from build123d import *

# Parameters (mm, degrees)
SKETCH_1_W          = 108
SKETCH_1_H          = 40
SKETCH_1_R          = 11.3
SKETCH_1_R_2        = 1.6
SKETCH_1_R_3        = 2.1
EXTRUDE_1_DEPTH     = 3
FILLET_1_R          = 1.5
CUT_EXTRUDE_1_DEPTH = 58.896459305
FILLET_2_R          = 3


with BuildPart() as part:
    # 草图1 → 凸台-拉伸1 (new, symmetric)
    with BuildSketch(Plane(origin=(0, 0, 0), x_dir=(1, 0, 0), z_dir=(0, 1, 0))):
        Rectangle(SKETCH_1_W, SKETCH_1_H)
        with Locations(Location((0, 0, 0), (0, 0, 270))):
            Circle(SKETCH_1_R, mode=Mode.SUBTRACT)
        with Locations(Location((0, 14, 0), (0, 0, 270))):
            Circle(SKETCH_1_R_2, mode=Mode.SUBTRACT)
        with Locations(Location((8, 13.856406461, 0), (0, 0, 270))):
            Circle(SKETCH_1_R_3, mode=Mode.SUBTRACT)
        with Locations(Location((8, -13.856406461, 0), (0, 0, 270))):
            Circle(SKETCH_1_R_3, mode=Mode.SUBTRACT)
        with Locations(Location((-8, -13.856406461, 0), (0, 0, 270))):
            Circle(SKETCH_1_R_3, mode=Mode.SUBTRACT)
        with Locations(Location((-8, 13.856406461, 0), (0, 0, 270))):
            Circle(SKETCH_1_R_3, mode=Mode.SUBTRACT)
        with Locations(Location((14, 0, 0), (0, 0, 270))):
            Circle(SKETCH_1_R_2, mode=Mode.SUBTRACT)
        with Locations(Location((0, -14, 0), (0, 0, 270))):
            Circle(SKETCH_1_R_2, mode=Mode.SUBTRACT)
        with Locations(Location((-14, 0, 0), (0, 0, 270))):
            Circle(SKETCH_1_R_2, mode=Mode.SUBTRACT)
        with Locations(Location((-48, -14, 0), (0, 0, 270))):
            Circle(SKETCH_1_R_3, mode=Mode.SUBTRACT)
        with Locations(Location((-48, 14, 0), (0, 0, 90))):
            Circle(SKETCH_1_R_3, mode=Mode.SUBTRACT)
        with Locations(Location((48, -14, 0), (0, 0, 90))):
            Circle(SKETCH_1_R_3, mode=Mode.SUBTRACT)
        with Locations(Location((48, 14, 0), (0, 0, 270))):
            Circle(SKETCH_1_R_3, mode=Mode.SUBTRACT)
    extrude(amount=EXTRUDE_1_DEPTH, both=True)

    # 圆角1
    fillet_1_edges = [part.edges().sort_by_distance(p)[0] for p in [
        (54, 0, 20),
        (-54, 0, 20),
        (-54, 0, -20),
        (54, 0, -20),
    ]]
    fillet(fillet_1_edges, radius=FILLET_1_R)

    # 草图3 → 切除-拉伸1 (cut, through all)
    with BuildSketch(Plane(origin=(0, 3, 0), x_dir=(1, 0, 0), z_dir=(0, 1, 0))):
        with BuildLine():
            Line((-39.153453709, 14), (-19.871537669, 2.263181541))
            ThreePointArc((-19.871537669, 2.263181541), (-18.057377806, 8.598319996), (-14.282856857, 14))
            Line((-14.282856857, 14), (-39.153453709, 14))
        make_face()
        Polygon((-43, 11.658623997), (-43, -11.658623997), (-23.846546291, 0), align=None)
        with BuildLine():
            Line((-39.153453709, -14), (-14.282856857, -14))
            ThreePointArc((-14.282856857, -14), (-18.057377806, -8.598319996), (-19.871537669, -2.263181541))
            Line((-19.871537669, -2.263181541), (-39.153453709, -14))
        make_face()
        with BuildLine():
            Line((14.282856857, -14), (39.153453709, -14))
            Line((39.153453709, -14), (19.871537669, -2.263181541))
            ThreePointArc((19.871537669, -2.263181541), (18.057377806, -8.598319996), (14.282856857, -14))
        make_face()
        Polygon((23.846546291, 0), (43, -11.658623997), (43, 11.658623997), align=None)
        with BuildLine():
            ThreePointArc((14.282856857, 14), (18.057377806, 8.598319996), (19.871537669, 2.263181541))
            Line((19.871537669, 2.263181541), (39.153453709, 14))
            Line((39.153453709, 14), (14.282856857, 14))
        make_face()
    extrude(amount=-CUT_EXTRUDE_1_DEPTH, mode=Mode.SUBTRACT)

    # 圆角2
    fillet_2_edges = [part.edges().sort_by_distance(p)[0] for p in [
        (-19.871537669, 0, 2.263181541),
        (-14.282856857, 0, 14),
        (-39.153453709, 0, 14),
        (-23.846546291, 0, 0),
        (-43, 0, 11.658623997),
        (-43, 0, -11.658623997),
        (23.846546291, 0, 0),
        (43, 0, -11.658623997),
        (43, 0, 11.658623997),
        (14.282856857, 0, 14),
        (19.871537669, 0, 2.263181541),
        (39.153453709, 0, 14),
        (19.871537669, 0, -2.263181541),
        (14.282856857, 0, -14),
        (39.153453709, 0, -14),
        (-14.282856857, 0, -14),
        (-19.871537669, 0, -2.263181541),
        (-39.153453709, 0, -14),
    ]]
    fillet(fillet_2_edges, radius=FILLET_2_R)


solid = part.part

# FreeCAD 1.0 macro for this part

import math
import FreeCAD as App
import Part
import Sketcher
from FreeCAD import Vector
Q = App.Units.Quantity


def edges_at(feature, points):
    """Names of the edges that pass closest to the given points."""
    edges = feature.Shape.Edges
    near = lambda p: min(range(len(edges)), key=lambda i: edges[i].distToShape(Part.Vertex(*p))[0])
    return sorted({f"Edge{near(p) + 1}" for p in points})

doc = App.newDocument("Part")
body = doc.addObject("PartDesign::Body", "Body")

# Sketch on XZ plane
sketch1 = doc.addObject("Sketcher::SketchObject", "Sketch")
body.addObject(sketch1)
sketch1.AttachmentSupport = (doc.XZ_Plane, [""])
sketch1.MapMode = "FlatFace"
sketch1.addGeometry([
    Part.LineSegment(Vector(-54, -20, 0), Vector(-54, 20, 0)),  # 0
    Part.LineSegment(Vector(-54, 20, 0), Vector(54, 20, 0)),  # 1
    Part.LineSegment(Vector(54, 20, 0), Vector(54, -20, 0)),  # 2
    Part.LineSegment(Vector(54, -20, 0), Vector(-54, -20, 0)),  # 3
    Part.Circle(Vector(-48, 14, 0), Vector(0, 0, 1), 2.1),  # 4
    Part.Circle(Vector(-8, 13.856406, 0), Vector(0, 0, 1), 2.1),  # 5
    Part.Circle(Vector(0, 14, 0), Vector(0, 0, 1), 1.6),  # 6
    Part.Circle(Vector(8, 13.856406, 0), Vector(0, 0, 1), 2.1),  # 7
    Part.Circle(Vector(48, 14, 0), Vector(0, 0, 1), 2.1),  # 8
    Part.Circle(Vector(-14, 0, 0), Vector(0, 0, 1), 1.6),  # 9
    Part.Circle(Vector(-48, -14, 0), Vector(0, 0, 1), 2.1),  # 10
    Part.Circle(Vector(-8, -13.856406, 0), Vector(0, 0, 1), 2.1),  # 11
    Part.Circle(Vector(0, 0, 0), Vector(0, 0, 1), 11.3),  # 12
    Part.Circle(Vector(14, 0, 0), Vector(0, 0, 1), 1.6),  # 13
    Part.Circle(Vector(0, -14, 0), Vector(0, 0, 1), 1.6),  # 14
    Part.Circle(Vector(8, -13.856406, 0), Vector(0, 0, 1), 2.1),  # 15
    Part.Circle(Vector(48, -14, 0), Vector(0, 0, 1), 2.1),  # 16
], False)
sketch1.addConstraint([
    Sketcher.Constraint("Coincident", 0, 2, 1, 1),
    Sketcher.Constraint("Coincident", 1, 2, 2, 1),
    Sketcher.Constraint("Coincident", 2, 2, 3, 1),
    Sketcher.Constraint("Coincident", 3, 2, 0, 1),
    Sketcher.Constraint("Vertical", 0),
    Sketcher.Constraint("Horizontal", 1),
    Sketcher.Constraint("Vertical", 2),
    Sketcher.Constraint("Horizontal", 3),
    Sketcher.Constraint("Coincident", 12, 3, -1, 1),
    Sketcher.Constraint("Equal", 4, 5),
    Sketcher.Constraint("Equal", 5, 7),
    Sketcher.Constraint("Equal", 7, 8),
    Sketcher.Constraint("Equal", 6, 9),
    Sketcher.Constraint("Equal", 8, 10),
    Sketcher.Constraint("Equal", 10, 11),
    Sketcher.Constraint("Equal", 9, 13),
    Sketcher.Constraint("Equal", 13, 14),
    Sketcher.Constraint("Equal", 11, 15),
    Sketcher.Constraint("Equal", 15, 16),
    Sketcher.Constraint("Symmetric", 8, 3, 10, 3, -1, 1),
    Sketcher.Constraint("Symmetric", 7, 3, 11, 3, -1, 1),
    Sketcher.Constraint("Symmetric", 9, 3, 13, 3, -1, 1),
    Sketcher.Constraint("Symmetric", 6, 3, 14, 3, -1, 1),
    Sketcher.Constraint("Symmetric", 5, 3, 15, 3, -1, 1),
    Sketcher.Constraint("Symmetric", 4, 3, 16, 3, -1, 1),
    Sketcher.Constraint("Symmetric", 0, 2, 2, 2, -1, 1),
    Sketcher.Constraint("Symmetric", 5, 3, 7, 3, -2),
    Sketcher.Constraint("Symmetric", 4, 3, 8, 3, -2),
    Sketcher.Constraint("PointOnObject", 6, 3, -2),
    Sketcher.Constraint("PointOnObject", 9, 3, -1),
    Sketcher.Constraint("Horizontal", 4, 3, 6, 3),
    Sketcher.Constraint("Diameter", 4, Q("4.2 mm")),
    Sketcher.Constraint("Diameter", 6, Q("3.2 mm")),
    Sketcher.Constraint("Diameter", 12, Q("22.6 mm")),
    Sketcher.Constraint("DistanceX", 1, 1, 1, 2, Q("108 mm")),
    Sketcher.Constraint("DistanceY", 0, 1, 0, 2, Q("40 mm")),
    Sketcher.Constraint("DistanceX", 4, 3, -1, 1, Q("48 mm")),
    Sketcher.Constraint("DistanceY", -1, 1, 4, 3, Q("14 mm")),
    Sketcher.Constraint("DistanceX", 5, 3, -1, 1, Q("8 mm")),
    Sketcher.Constraint("DistanceX", 9, 3, -1, 1, Q("14 mm")),
    Sketcher.Constraint("DistanceY", -1, 1, 5, 3, Q("13.856406 mm")),
])
pad1 = doc.addObject("PartDesign::Pad", "Pad")
body.addObject(pad1)
pad1.Profile = sketch1
pad1.Length = 6
pad1.Midplane = True
doc.recompute()

fillet = doc.addObject("PartDesign::Fillet", "Fillet")
body.addObject(fillet)
fillet.Base = (pad1, edges_at(pad1, [
    (54, 0, 20),
    (-54, 0, 20),
    (-54, 0, -20),
    (54, 0, -20),
]))
fillet.Radius = 1.5

# Sketch on XZ plane
sketch2 = doc.addObject("Sketcher::SketchObject", "Sketch001")
body.addObject(sketch2)
sketch2.AttachmentSupport = (doc.XZ_Plane, [""])
sketch2.MapMode = "FlatFace"
sketch2.AttachmentOffset = App.Placement(Vector(0, 0, -3), App.Rotation())
sketch2.addGeometry([
    Part.LineSegment(Vector(-39.153454, -14, 0), Vector(-19.871538, -2.263182, 0)),  # 0
    Part.ArcOfCircle(Part.Circle(Vector(0, 0, 0), Vector(0, 0, 1), 20), math.radians(-173.502545), math.radians(-135.572996)),  # 1
    Part.LineSegment(Vector(-14.282857, -14, 0), Vector(-39.153454, -14, 0)),  # 2
    Part.LineSegment(Vector(-43, -11.658624, 0), Vector(-43, 11.658624, 0)),  # 3
    Part.LineSegment(Vector(-43, 11.658624, 0), Vector(-23.846546, 0, 0)),  # 4
    Part.LineSegment(Vector(-23.846546, 0, 0), Vector(-43, -11.658624, 0)),  # 5
    Part.LineSegment(Vector(-39.153454, 14, 0), Vector(-14.282857, 14, 0)),  # 6
    Part.ArcOfCircle(Part.Circle(Vector(0, 0, 0), Vector(0, 0, 1), 20), math.radians(135.572996), math.radians(173.502545)),  # 7
    Part.LineSegment(Vector(-19.871538, 2.263182, 0), Vector(-39.153454, 14, 0)),  # 8
    Part.LineSegment(Vector(14.282857, 14, 0), Vector(39.153454, 14, 0)),  # 9
    Part.LineSegment(Vector(39.153454, 14, 0), Vector(19.871538, 2.263182, 0)),  # 10
    Part.ArcOfCircle(Part.Circle(Vector(0, 0, 0), Vector(0, 0, 1), 20), math.radians(6.497455), math.radians(44.427004)),  # 11
    Part.LineSegment(Vector(23.846546, 0, 0), Vector(43, 11.658624, 0)),  # 12
    Part.LineSegment(Vector(43, 11.658624, 0), Vector(43, -11.658624, 0)),  # 13
    Part.LineSegment(Vector(43, -11.658624, 0), Vector(23.846546, 0, 0)),  # 14
    Part.ArcOfCircle(Part.Circle(Vector(0, 0, 0), Vector(0, 0, 1), 20), math.radians(-44.427004), math.radians(-6.497455)),  # 15
    Part.LineSegment(Vector(19.871538, -2.263182, 0), Vector(39.153454, -14, 0)),  # 16
    Part.LineSegment(Vector(39.153454, -14, 0), Vector(14.282857, -14, 0)),  # 17
], False)
sketch2.addConstraint([
    Sketcher.Constraint("Coincident", 0, 2, 1, 1),
    Sketcher.Constraint("Coincident", 1, 2, 2, 1),
    Sketcher.Constraint("Coincident", 2, 2, 0, 1),
    Sketcher.Constraint("Coincident", 3, 2, 4, 1),
    Sketcher.Constraint("Coincident", 4, 2, 5, 1),
    Sketcher.Constraint("Coincident", 5, 2, 3, 1),
    Sketcher.Constraint("Coincident", 6, 2, 7, 1),
    Sketcher.Constraint("Coincident", 7, 2, 8, 1),
    Sketcher.Constraint("Coincident", 8, 2, 6, 1),
    Sketcher.Constraint("Coincident", 9, 2, 10, 1),
    Sketcher.Constraint("Coincident", 10, 2, 11, 1),
    Sketcher.Constraint("Coincident", 11, 2, 9, 1),
    Sketcher.Constraint("Coincident", 12, 2, 13, 1),
    Sketcher.Constraint("Coincident", 13, 2, 14, 1),
    Sketcher.Constraint("Coincident", 14, 2, 12, 1),
    Sketcher.Constraint("Coincident", 15, 2, 16, 1),
    Sketcher.Constraint("Coincident", 16, 2, 17, 1),
    Sketcher.Constraint("Coincident", 17, 2, 15, 1),
    Sketcher.Constraint("Horizontal", 2),
    Sketcher.Constraint("Vertical", 3),
    Sketcher.Constraint("Horizontal", 6),
    Sketcher.Constraint("Horizontal", 9),
    Sketcher.Constraint("Vertical", 13),
    Sketcher.Constraint("Horizontal", 17),
    Sketcher.Constraint("Coincident", 1, 3, -1, 1),
    Sketcher.Constraint("Coincident", 7, 3, -1, 1),
    Sketcher.Constraint("Coincident", 11, 3, -1, 1),
    Sketcher.Constraint("Coincident", 15, 3, -1, 1),
    Sketcher.Constraint("Equal", 1, 7),
    Sketcher.Constraint("Equal", 7, 11),
    Sketcher.Constraint("Equal", 11, 15),
    Sketcher.Constraint("Symmetric", 2, 2, 9, 2, -1, 1),
    Sketcher.Constraint("Symmetric", 5, 2, 12, 2, -1, 1),
    Sketcher.Constraint("Symmetric", 4, 2, 14, 2, -1, 1),
    Sketcher.Constraint("Symmetric", 8, 2, 16, 2, -1, 1),
    Sketcher.Constraint("Symmetric", 8, 2, 9, 2, -2),
    Sketcher.Constraint("PointOnObject", 4, 2, -1),
    Sketcher.Constraint("Parallel", 0, 5),
    Sketcher.Constraint("Parallel", 4, 8),
    Sketcher.Constraint("Parallel", 5, 10),
    Sketcher.Constraint("Parallel", 8, 14),
    Sketcher.Constraint("Parallel", 14, 16),
    Sketcher.Constraint("Horizontal", 7, 2, 10, 2),
    Sketcher.Constraint("Radius", 1, Q("20 mm")),
    Sketcher.Constraint("DistanceY", 1, 2, -1, 1, Q("14 mm")),
    Sketcher.Constraint("DistanceX", 3, 2, -1, 1, Q("43 mm")),
    Sketcher.Constraint("Distance", 4, Q("22.422718 mm")),
    Sketcher.Constraint("DistanceX", 2, 2, 2, 1, Q("24.870597 mm")),
    Sketcher.Constraint("DistanceY", 3, 1, 3, 2, Q("23.317248 mm")),
])
pocket1 = doc.addObject("PartDesign::Pocket", "Pocket")
body.addObject(pocket1)
pocket1.Profile = sketch2
pocket1.Type = "ThroughAll"
pocket1.Reversed = True
doc.recompute()

fillet2 = doc.addObject("PartDesign::Fillet", "Fillet001")
body.addObject(fillet2)
fillet2.Base = (pocket1, edges_at(pocket1, [
    (-19.872, 0, 2.263),
    (-14.283, 0, 14),
    (-39.153, 0, 14),
    (-23.847, 0, 0),
    (-43, 0, 11.659),
    (-43, 0, -11.659),
    (23.847, 0, 0),
    (43, 0, -11.659),
    (43, 0, 11.659),
    (14.283, 0, 14),
    (19.872, 0, 2.263),
    (39.153, 0, 14),
    (19.872, 0, -2.263),
    (14.283, 0, -14),
    (39.153, 0, -14),
    (-14.283, 0, -14),
    (-19.872, 0, -2.263),
    (-39.153, 0, -14),
]))
fillet2.Radius = 3

doc.recompute()
